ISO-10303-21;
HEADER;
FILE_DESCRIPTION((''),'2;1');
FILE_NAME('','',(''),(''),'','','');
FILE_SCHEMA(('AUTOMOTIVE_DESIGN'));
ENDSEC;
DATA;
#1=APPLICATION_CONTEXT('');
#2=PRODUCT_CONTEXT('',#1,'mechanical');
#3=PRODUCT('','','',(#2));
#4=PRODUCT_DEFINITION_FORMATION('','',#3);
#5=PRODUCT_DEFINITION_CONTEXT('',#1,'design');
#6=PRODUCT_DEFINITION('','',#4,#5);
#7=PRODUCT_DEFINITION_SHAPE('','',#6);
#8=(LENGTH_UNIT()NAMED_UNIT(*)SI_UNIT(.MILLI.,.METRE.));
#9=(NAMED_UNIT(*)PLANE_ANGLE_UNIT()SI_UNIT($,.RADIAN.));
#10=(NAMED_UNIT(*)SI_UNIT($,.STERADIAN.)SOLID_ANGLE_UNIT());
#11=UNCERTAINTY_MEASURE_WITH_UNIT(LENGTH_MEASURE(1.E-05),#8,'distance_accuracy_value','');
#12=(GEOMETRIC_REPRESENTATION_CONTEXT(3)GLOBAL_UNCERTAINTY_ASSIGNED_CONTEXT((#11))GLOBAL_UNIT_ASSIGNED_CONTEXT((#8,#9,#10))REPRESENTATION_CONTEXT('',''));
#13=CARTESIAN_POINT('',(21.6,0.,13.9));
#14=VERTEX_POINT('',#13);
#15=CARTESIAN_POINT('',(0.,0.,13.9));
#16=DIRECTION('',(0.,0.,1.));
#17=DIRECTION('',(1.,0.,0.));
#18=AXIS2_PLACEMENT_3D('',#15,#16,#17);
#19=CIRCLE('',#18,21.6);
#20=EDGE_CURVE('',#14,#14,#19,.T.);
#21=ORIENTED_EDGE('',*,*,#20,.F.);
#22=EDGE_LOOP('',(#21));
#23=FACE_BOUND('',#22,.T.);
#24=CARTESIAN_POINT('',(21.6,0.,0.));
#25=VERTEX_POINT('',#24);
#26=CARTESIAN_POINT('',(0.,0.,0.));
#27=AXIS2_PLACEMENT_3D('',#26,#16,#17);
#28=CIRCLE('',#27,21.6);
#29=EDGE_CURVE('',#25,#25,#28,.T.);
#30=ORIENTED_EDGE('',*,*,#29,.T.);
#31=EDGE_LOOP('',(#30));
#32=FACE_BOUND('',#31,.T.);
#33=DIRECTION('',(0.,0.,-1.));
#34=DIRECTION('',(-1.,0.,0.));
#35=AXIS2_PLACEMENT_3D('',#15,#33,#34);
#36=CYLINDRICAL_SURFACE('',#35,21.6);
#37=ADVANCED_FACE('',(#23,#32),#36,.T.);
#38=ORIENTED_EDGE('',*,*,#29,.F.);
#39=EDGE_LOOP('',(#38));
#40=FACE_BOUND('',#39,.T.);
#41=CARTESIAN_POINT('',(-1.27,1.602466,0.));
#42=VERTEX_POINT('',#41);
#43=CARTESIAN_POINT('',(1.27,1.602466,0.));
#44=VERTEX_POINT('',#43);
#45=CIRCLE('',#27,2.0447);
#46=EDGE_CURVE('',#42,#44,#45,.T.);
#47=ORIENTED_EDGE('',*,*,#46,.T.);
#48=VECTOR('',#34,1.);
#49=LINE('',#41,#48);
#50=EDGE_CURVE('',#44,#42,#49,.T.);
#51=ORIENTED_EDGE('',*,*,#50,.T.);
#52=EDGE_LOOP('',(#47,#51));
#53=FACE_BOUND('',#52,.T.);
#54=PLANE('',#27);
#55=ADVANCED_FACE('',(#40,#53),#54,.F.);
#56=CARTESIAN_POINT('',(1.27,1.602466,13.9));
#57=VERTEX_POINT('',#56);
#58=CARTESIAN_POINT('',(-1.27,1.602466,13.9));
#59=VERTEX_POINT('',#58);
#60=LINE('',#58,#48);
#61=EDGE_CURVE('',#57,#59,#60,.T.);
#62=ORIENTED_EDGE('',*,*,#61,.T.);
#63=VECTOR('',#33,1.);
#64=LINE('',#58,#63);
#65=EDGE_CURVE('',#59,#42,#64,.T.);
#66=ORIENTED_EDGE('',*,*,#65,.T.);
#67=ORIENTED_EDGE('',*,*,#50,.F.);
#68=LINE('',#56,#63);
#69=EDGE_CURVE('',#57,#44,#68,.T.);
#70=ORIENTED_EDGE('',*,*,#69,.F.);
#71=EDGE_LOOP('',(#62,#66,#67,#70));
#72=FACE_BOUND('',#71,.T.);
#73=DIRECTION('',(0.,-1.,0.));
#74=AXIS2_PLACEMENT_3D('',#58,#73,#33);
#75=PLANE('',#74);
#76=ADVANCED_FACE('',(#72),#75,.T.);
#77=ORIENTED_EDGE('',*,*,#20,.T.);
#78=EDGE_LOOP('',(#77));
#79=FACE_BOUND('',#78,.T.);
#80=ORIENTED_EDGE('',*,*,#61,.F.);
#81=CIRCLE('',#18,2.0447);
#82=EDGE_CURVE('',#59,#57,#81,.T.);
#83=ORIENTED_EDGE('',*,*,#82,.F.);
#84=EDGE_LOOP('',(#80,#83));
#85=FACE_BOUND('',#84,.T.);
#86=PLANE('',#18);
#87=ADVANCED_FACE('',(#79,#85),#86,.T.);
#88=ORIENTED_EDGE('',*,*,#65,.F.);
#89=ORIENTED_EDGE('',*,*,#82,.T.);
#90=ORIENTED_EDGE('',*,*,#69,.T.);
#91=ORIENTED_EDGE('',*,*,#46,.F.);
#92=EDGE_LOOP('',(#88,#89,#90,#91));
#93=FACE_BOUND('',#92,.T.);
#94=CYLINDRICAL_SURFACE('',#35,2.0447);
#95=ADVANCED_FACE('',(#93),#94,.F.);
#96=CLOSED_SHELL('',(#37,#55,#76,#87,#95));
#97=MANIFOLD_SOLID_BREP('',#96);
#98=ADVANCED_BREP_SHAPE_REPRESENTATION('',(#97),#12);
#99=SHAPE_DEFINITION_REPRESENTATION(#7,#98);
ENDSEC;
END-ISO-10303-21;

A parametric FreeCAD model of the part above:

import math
import FreeCAD as App
import Part
import Sketcher
from FreeCAD import Vector

doc = App.newDocument("Part")
params = doc.addObject("Spreadsheet::Sheet", "Params")
for row, (alias, value) in enumerate([
    ("sketch1_diameter", "43.2 mm"),
    ("sketch1_width", "2.54 mm"),
    ("pad1_length", "13.9 mm"),
], start=1):
    params.set(f"A{row}", alias)
    params.set(f"B{row}", "=" + value)
    params.setAlias(f"B{row}", alias)

body = doc.addObject("PartDesign::Body", "Body")

# Sketch on XY plane
sketch1 = body.newObject("Sketcher::SketchObject", "Sketch")
sketch1.AttachmentSupport = (doc.getObject("XY_Plane"), [""])
sketch1.MapMode = "FlatFace"
sketch1.addGeometry([
    Part.Circle(Vector(0, 0, 0), Vector(0, 0, 1), 21.6),
    Part.ArcOfCircle(Part.Circle(Vector(0, 0, 0), Vector(0, 0, 1), 2.0447), math.radians(128.397824), math.radians(411.602176)),
    Part.LineSegment(Vector(-1.27, 1.602466, 0), Vector(1.27, 1.602466, 0)),
], False)
sketch1.addConstraint([
    Sketcher.Constraint("Coincident", 1, 1, 2, 1),
    Sketcher.Constraint("Coincident", 2, 2, 1, 2),
    Sketcher.Constraint("Horizontal", 2),
    Sketcher.Constraint("Coincident", 0, 3, -1, 1),
    Sketcher.Constraint("Coincident", 1, 3, -1, 1),
    Sketcher.Constraint("Diameter", 0, 43.2),
    Sketcher.Constraint("DistanceX", 2, 1, 2, 2, 2.54),
    Sketcher.Constraint("Radius", 1, 2.0447),
])
sketch1.setExpression("Constraints[5]", "Params.sketch1_diameter")
sketch1.setExpression("Constraints[6]", "Params.sketch1_width")
pad1 = body.newObject("PartDesign::Pad", "Pad")
pad1.Profile = sketch1
pad1.setExpression("Length", "Params.pad1_length")

doc.recompute()
